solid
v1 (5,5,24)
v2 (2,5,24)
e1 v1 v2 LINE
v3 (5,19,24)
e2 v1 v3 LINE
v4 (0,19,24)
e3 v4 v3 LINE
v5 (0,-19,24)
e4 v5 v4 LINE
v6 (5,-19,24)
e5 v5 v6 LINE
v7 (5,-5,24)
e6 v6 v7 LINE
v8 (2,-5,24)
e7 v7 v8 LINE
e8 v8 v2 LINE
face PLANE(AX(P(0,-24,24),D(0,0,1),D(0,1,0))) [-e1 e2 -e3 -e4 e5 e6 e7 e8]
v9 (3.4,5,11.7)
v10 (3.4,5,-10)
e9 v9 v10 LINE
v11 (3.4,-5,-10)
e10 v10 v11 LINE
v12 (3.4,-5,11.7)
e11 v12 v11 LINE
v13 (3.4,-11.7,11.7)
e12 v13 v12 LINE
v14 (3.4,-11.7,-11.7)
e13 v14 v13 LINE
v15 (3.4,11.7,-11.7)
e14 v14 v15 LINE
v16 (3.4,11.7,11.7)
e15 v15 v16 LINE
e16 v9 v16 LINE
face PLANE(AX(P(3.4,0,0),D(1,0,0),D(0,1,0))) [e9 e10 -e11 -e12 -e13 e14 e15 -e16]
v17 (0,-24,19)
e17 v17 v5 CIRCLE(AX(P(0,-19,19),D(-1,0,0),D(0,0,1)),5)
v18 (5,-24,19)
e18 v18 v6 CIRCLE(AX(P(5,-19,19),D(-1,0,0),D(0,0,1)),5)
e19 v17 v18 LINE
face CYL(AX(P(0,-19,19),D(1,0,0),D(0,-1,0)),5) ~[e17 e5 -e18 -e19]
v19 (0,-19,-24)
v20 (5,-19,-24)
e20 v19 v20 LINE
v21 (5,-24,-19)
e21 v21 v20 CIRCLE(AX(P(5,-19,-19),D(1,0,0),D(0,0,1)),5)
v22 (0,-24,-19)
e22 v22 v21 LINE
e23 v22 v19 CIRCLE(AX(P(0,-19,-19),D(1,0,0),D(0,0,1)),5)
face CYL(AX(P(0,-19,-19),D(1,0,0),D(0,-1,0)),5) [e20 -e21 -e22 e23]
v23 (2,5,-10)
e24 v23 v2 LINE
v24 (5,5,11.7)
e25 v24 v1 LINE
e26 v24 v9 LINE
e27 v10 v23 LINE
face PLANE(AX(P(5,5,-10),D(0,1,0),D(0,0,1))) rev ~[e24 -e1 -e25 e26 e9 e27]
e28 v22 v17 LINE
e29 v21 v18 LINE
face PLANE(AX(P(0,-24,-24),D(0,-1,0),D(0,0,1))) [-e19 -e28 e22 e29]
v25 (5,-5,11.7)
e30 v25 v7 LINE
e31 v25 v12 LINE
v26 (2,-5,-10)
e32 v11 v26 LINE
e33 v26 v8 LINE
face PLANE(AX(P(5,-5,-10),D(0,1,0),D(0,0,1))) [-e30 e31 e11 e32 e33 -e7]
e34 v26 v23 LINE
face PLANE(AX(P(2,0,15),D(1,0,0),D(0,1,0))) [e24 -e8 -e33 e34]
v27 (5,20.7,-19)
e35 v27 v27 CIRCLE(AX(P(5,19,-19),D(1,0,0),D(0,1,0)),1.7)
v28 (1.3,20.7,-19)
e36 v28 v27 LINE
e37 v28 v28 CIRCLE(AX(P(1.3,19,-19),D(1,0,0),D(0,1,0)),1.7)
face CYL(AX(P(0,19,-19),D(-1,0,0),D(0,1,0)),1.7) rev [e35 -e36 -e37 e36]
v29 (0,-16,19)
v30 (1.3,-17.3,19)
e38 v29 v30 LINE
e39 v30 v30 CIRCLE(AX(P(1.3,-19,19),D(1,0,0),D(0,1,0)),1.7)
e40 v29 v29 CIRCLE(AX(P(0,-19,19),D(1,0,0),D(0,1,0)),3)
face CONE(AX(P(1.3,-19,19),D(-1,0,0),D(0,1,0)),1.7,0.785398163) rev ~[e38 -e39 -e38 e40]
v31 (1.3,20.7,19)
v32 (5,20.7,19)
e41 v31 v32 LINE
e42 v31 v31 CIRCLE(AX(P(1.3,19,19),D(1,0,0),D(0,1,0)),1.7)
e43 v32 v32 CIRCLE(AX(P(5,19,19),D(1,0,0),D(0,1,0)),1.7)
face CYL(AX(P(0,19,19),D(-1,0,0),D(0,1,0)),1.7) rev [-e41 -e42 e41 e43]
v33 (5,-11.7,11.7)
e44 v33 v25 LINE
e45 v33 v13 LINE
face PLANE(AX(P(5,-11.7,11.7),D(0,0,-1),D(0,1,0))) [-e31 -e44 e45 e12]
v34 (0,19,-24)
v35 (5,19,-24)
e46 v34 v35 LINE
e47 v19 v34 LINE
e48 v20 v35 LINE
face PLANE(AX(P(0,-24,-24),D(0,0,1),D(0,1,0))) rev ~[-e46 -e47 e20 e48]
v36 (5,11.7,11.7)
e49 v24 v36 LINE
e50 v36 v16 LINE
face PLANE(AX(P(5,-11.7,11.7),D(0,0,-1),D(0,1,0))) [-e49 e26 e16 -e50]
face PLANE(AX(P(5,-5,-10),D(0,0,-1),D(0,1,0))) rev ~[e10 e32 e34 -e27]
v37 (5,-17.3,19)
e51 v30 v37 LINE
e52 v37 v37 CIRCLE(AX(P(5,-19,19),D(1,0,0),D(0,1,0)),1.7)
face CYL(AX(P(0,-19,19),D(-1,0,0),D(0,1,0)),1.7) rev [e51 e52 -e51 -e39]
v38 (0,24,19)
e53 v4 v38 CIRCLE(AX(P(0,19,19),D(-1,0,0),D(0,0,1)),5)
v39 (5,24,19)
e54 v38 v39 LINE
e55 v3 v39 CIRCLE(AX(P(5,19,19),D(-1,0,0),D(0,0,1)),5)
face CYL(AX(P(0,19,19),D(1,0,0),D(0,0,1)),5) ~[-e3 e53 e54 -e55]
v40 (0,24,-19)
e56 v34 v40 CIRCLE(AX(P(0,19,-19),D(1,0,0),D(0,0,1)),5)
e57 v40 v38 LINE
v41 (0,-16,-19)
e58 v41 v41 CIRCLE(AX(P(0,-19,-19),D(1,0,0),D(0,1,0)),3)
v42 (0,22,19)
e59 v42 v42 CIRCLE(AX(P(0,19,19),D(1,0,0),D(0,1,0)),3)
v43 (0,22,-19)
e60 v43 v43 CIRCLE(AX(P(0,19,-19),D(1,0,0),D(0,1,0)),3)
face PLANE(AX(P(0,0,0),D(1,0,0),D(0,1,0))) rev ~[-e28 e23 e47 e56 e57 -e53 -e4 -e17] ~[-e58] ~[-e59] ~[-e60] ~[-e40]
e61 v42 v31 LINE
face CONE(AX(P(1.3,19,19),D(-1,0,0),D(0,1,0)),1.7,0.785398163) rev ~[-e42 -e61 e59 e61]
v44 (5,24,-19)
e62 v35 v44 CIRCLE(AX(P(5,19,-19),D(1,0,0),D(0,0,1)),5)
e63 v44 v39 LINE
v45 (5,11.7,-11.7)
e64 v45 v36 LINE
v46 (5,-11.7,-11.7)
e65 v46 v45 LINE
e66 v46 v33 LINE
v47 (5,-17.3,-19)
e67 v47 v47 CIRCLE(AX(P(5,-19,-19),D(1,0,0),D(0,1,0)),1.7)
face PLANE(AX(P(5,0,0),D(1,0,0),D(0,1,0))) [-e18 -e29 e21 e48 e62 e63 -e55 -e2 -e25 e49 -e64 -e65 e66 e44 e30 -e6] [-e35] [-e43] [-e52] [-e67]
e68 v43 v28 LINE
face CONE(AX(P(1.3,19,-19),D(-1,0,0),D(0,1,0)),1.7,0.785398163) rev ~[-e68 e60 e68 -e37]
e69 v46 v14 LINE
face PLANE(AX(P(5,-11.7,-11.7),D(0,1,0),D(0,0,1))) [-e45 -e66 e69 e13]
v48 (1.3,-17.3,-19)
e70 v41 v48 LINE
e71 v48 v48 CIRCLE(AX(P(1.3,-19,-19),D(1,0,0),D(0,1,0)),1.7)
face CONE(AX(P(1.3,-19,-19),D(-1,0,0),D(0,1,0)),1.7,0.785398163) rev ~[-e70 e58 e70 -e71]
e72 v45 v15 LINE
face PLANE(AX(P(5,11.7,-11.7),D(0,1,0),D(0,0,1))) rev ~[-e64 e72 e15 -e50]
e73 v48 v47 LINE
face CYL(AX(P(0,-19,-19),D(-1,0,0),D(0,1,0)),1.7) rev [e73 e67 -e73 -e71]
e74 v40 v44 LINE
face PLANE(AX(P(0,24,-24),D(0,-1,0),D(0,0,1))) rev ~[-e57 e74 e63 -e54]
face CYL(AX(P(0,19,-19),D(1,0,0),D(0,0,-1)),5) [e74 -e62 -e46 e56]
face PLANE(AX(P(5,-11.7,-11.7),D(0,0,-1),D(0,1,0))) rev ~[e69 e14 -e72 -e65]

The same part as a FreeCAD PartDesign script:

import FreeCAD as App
import Part
import Sketcher

V = App.Vector


def edges_at(feature, points):
    """Names of the edges that pass closest to the given points."""
    edges = feature.Shape.Edges
    near = lambda p: min(range(len(edges)), key=lambda i: edges[i].distToShape(Part.Vertex(*p))[0])
    return sorted({f"Edge{near(p) + 1}" for p in points})


def add_polygon(sketch, points):
    """Adds a closed chain of lines whose ends are joined by coincident constraints."""
    first, n = sketch.GeometryCount, len(points)
    for a, b in zip(points, points[1:] + points[:1]):
        sketch.addGeometry(Part.LineSegment(App.Vector(*a, 0), App.Vector(*b, 0)), False)
    for i in range(n):
        sketch.addConstraint(Sketcher.Constraint("Coincident", first + i, 2, first + (i + 1) % n, 1))

doc = App.newDocument("Part")
body = doc.addObject("PartDesign::Body", "Body")

sketch1 = body.newObject("Sketcher::SketchObject", "Sketch")
sketch1.AttachmentSupport = (doc.getObject("YZ_Plane"), [""])
sketch1.MapMode = "FlatFace"
add_polygon(sketch1, [(-24, 24), (-24, -24), (24, -24), (24, 24)])
sketch1.addGeometry(Part.Circle(V(-19, -19, 0), V(0, 0, 1), 1.7), False)
sketch1.addGeometry(Part.Circle(V(19, -19, 0), V(0, 0, 1), 1.7), False)
sketch1.addGeometry(Part.Circle(V(-19, 19, 0), V(0, 0, 1), 1.7), False)
sketch1.addGeometry(Part.Circle(V(19, 19, 0), V(0, 0, 1), 1.7), False)
sketch1.addConstraint([
    Sketcher.Constraint("Vertical", 0),
    Sketcher.Constraint("Horizontal", 1),
    Sketcher.Constraint("Vertical", 2),
    Sketcher.Constraint("Horizontal", 3),
    Sketcher.Constraint("Equal", 4, 5),
    Sketcher.Constraint("Equal", 5, 6),
    Sketcher.Constraint("Equal", 6, 7),
    Sketcher.Constraint("Symmetric", 5, 3, 6, 3, -1, 1),
    Sketcher.Constraint("Symmetric", 4, 3, 7, 3, -1, 1),
    Sketcher.Constraint("Symmetric", 0, 2, 2, 2, -1, 1),
    Sketcher.Constraint("Symmetric", 4, 3, 5, 3, -2),
    Sketcher.Constraint("Equal", 3, 0),
    Sketcher.Constraint("Diameter", 4, 3.4),
    Sketcher.Constraint("DistanceX", 1, 1, 1, 2, 48.0),
    Sketcher.Constraint("DistanceX", 4, 3, -1, 1, 19.0),
    Sketcher.Constraint("DistanceY", 4, 3, -1, 1, 19.0),
])
pad1 = body.newObject("PartDesign::Pad", "Pad")
pad1.Profile = sketch1
pad1.Length = 5

sketch2 = body.newObject("Sketcher::SketchObject", "Sketch001")
sketch2.AttachmentSupport = (doc.getObject("YZ_Plane"), [""])
sketch2.MapMode = "FlatFace"
sketch2.AttachmentOffset = App.Placement(V(0, 0, 5), App.Rotation())
add_polygon(sketch2, [(-5, 40), (-5, -10), (5, -10), (5, 40)])
sketch2.addConstraint([
    Sketcher.Constraint("Vertical", 0),
    Sketcher.Constraint("Horizontal", 1),
    Sketcher.Constraint("Vertical", 2),
    Sketcher.Constraint("Horizontal", 3),
    Sketcher.Constraint("DistanceX", 1, 1, 1, 2, 10.0),
    Sketcher.Constraint("DistanceY", 0, 2, 0, 1, 50.0),
    Sketcher.Constraint("DistanceX", 0, 2, -1, 1, 5.0),
    Sketcher.Constraint("DistanceY", 0, 2, -1, 1, 10.0),
])
pocket1 = body.newObject("PartDesign::Pocket", "Pocket")
pocket1.Profile = sketch2
pocket1.Length = 3

sketch3 = body.newObject("Sketcher::SketchObject", "Sketch002")
sketch3.AttachmentSupport = (doc.getObject("YZ_Plane"), [""])
sketch3.MapMode = "FlatFace"
sketch3.AttachmentOffset = App.Placement(V(0, 0, 5), App.Rotation())
add_polygon(sketch3, [(-12, 12), (-12, -12), (12, -12), (12, 12)])
sketch3.addConstraint([
    Sketcher.Constraint("Vertical", 0),
    Sketcher.Constraint("Horizontal", 1),
    Sketcher.Constraint("Vertical", 2),
    Sketcher.Constraint("Horizontal", 3),
    Sketcher.Constraint("Symmetric", 0, 2, 2, 2, -1, 1),
    Sketcher.Constraint("Equal", 3, 0),
    Sketcher.Constraint("DistanceX", 1, 1, 1, 2, 23.4),
])
pocket2 = body.newObject("PartDesign::Pocket", "Pocket001")
pocket2.Profile = sketch3
pocket2.Length = 1.6
doc.recompute()

fillet = body.newObject("PartDesign::Fillet", "Fillet")
fillet.Base = (pocket2, edges_at(pocket2, [
    (2.5, 24, 24),
    (2.5, -24, 24),
    (2.5, -24, -24),
    (2.5, 24, -24),
]))
fillet.Radius = 5
doc.recompute()

chamfer = body.newObject("PartDesign::Chamfer", "Chamfer")
chamfer.Base = (fillet, edges_at(fillet, [
    (0, 17.3, 19),
    (0, -20.7, 19),
    (0, 17.3, -19),
    (0, -20.7, -19),
]))
chamfer.Size = 1.3

doc.recompute()
